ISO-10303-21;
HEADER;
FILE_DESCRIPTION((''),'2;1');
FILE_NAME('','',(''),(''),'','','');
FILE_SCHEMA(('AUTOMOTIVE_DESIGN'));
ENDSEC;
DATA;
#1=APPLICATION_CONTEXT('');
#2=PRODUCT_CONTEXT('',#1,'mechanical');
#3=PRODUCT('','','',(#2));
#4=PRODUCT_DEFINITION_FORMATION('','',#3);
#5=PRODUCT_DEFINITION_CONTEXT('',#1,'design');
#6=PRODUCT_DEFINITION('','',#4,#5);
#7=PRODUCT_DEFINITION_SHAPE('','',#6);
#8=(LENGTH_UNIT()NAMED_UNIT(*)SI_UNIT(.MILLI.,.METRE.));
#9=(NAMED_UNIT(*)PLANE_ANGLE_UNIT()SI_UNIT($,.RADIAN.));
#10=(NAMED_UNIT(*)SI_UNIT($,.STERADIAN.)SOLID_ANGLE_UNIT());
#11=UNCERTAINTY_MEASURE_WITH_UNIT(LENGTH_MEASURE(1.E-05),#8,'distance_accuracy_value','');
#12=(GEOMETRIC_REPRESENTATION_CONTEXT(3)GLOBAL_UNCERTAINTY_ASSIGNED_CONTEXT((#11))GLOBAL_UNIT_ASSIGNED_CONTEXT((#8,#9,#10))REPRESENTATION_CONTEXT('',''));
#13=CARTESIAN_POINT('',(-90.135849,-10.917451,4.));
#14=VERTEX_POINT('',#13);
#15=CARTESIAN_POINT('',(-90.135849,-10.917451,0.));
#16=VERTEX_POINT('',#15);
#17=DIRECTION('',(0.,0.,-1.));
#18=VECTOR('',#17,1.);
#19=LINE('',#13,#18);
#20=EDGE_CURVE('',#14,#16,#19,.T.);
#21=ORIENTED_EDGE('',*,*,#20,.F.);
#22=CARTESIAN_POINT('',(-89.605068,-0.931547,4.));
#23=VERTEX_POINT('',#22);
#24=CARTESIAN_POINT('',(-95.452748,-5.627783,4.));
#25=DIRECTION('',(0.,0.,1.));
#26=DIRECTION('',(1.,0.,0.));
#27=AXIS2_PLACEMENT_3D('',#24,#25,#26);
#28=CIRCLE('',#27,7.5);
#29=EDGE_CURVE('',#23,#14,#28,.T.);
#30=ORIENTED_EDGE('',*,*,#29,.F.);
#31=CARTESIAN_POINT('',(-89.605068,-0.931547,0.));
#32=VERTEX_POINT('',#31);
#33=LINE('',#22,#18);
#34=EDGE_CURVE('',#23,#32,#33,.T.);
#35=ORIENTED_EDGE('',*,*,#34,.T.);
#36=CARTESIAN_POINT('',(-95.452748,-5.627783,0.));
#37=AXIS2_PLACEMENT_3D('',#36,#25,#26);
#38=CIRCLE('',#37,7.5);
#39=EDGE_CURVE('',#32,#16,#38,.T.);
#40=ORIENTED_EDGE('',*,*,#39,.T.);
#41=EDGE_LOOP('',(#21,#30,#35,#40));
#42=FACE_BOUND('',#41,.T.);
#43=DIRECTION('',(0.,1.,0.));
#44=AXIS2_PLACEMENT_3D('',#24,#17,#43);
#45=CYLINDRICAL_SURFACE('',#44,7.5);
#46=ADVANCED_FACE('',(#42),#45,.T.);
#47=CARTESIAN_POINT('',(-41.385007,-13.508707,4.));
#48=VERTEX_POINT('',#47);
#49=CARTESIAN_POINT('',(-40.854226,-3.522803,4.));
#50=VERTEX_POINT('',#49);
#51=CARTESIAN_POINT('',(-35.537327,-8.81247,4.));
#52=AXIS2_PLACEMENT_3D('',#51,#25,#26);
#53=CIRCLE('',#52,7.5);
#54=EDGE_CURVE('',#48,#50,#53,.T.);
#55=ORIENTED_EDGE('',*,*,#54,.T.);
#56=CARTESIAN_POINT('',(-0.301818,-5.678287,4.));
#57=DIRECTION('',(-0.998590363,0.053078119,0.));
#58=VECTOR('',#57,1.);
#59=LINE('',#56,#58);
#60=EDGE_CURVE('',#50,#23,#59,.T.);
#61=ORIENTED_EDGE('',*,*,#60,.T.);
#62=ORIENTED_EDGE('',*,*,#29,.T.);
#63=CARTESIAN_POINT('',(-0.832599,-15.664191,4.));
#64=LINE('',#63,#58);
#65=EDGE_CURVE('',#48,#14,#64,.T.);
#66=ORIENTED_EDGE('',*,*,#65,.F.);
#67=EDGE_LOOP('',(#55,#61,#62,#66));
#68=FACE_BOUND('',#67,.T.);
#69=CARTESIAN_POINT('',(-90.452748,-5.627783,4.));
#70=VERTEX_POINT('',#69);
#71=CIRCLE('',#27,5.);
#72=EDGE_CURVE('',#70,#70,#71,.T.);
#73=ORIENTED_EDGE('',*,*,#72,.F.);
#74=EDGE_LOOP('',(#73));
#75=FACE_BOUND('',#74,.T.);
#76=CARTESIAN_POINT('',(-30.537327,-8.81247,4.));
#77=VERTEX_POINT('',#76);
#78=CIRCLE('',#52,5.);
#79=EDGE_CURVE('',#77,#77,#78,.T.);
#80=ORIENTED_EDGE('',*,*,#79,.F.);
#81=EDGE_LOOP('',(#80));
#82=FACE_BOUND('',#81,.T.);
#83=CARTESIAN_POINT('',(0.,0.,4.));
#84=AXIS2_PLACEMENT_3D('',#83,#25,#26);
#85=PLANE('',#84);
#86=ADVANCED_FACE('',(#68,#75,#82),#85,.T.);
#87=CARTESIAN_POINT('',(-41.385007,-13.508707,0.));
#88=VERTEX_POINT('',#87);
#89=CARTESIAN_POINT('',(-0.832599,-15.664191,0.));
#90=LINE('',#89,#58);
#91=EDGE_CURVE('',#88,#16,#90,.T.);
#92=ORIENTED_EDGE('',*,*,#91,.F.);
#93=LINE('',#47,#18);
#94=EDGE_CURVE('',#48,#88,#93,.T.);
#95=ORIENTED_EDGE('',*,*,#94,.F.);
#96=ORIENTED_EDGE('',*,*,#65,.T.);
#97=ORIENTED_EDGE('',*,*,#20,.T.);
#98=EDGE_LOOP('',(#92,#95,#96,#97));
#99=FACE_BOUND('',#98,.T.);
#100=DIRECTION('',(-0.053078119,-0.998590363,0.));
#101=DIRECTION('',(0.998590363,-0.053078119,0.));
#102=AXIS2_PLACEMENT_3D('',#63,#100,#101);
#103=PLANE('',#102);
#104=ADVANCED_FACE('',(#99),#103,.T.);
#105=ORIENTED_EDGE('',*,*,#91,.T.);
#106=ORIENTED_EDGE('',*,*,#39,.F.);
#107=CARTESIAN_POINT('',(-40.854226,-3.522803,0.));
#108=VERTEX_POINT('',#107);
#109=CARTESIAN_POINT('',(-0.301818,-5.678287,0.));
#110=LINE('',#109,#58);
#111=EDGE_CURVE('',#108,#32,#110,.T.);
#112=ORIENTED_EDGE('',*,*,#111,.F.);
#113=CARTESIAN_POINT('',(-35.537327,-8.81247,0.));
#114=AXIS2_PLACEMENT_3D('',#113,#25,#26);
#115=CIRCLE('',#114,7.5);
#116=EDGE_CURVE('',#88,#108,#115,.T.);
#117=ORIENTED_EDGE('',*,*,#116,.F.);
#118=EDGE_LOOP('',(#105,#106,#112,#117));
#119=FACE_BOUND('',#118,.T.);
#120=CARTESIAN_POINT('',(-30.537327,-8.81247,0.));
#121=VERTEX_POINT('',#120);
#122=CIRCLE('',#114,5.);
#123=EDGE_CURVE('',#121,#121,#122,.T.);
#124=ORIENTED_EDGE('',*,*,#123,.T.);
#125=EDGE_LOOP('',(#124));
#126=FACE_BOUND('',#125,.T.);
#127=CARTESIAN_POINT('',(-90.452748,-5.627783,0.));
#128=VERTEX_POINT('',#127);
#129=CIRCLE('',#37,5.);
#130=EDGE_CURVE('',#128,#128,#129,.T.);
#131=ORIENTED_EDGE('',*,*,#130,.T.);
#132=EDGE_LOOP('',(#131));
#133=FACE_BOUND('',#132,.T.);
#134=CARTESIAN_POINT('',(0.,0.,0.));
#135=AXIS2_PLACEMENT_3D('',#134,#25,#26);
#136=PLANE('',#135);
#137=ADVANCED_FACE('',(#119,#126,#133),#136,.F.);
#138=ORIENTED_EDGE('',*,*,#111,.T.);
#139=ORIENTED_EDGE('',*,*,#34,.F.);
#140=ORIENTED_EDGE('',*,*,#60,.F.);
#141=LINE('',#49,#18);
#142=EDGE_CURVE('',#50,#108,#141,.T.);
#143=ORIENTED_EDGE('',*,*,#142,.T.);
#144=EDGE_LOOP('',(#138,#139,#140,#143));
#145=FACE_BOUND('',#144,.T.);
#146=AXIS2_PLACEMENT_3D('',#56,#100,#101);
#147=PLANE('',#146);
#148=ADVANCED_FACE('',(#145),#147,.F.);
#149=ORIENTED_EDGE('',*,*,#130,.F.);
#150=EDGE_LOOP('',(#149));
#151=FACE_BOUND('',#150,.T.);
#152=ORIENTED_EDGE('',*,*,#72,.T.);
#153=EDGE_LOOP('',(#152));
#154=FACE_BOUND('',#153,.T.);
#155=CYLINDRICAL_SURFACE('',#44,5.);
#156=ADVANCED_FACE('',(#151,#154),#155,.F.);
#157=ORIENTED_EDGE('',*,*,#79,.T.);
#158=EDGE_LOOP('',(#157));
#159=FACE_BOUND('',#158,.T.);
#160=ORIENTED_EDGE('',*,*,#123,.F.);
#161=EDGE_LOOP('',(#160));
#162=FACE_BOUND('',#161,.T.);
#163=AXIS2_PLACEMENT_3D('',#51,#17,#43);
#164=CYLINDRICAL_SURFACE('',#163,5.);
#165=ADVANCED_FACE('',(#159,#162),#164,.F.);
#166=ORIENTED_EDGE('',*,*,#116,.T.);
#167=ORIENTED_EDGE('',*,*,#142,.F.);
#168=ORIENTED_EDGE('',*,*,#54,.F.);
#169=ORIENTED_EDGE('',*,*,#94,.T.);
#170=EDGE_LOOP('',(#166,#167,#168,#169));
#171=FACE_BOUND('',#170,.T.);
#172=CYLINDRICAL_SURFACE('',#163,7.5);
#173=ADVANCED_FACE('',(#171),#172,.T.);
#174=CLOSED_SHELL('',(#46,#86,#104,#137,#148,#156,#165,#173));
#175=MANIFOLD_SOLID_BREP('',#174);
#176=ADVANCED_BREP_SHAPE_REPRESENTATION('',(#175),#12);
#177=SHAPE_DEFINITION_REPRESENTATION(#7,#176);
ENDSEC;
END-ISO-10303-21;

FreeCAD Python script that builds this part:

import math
import FreeCAD as App
import Part
import Sketcher
from FreeCAD import Vector

doc = App.newDocument("Part")
body = doc.addObject("PartDesign::Body", "Body")

sketch1 = body.newObject("Sketcher::SketchObject", "Sketch")
sketch1.AttachmentSupport = (doc.getObject("XY_Plane"), [""])
sketch1.MapMode = "FlatFace"
sketch1.addGeometry(Part.ArcOfCircle(Part.Circle(Vector(-95.5, -5.6, 0), Vector(0, 0, 1), 7.5), math.radians(64), math.radians(315)), False)
sketch1.addGeometry(Part.LineSegment(Vector(-90.1, -10.9, 0), Vector(-41.4, -13.5, 0)), False)
sketch1.addGeometry(Part.ArcOfCircle(Part.Circle(Vector(-35.5, -8.8, 0), Vector(0, 0, 1), 7.5), math.radians(-141), math.radians(64)), False)
sketch1.addGeometry(Part.ArcOfCircle(Part.Circle(Vector(-35.5, -8.8, 0), Vector(0, 0, 1), 7.5), math.radians(64), math.radians(135)), False)
sketch1.addGeometry(Part.LineSegment(Vector(-40.9, -3.5, 0), Vector(-89.6, -0.9, 0)), False)
sketch1.addGeometry(Part.ArcOfCircle(Part.Circle(Vector(-95.5, -5.6, 0), Vector(0, 0, 1), 7.5), math.radians(39), math.radians(64)), False)
sketch1.addGeometry(Part.ArcOfCircle(Part.Circle(Vector(-35.5, -8.8, 0), Vector(0, 0, 1), 5), math.radians(87), math.radians(267)), False)
sketch1.addGeometry(Part.ArcOfCircle(Part.Circle(Vector(-35.5, -8.8, 0), Vector(0, 0, 1), 5), math.radians(64), math.radians(87)), False)
sketch1.addGeometry(Part.ArcOfCircle(Part.Circle(Vector(-35.5, -8.8, 0), Vector(0, 0, 1), 5), math.radians(-93), math.radians(64)), False)
sketch1.addGeometry(Part.ArcOfCircle(Part.Circle(Vector(-95.5, -5.6, 0), Vector(0, 0, 1), 5), math.radians(-93), math.radians(64)), False)
sketch1.addGeometry(Part.ArcOfCircle(Part.Circle(Vector(-95.5, -5.6, 0), Vector(0, 0, 1), 5), math.radians(87), math.radians(267)), False)
sketch1.addGeometry(Part.ArcOfCircle(Part.Circle(Vector(-95.5, -5.6, 0), Vector(0, 0, 1), 5), math.radians(64), math.radians(87)), False)
sketch1.addConstraint(Sketcher.Constraint("Coincident", 0, 2, 1, 1))
sketch1.addConstraint(Sketcher.Constraint("Coincident", 1, 2, 2, 1))
sketch1.addConstraint(Sketcher.Constraint("Tangent", 2, 2, 3, 1))
sketch1.addConstraint(Sketcher.Constraint("Coincident", 3, 2, 4, 1))
sketch1.addConstraint(Sketcher.Constraint("Coincident", 4, 2, 5, 1))
sketch1.addConstraint(Sketcher.Constraint("Tangent", 5, 2, 0, 1))
sketch1.addConstraint(Sketcher.Constraint("Tangent", 6, 1, 7, 2))
sketch1.addConstraint(Sketcher.Constraint("Tangent", 7, 1, 8, 2))
sketch1.addConstraint(Sketcher.Constraint("Tangent", 8, 1, 6, 2))
sketch1.addConstraint(Sketcher.Constraint("Tangent", 9, 1, 10, 2))
sketch1.addConstraint(Sketcher.Constraint("Tangent", 10, 1, 11, 2))
sketch1.addConstraint(Sketcher.Constraint("Tangent", 11, 1, 9, 2))
sketch1.addConstraint(Sketcher.Constraint("Coincident", 6, 3, 2, 3))
sketch1.addConstraint(Sketcher.Constraint("Coincident", 9, 3, 0, 3))
sketch1.addConstraint(Sketcher.Constraint("Equal", 0, 2))
sketch1.addConstraint(Sketcher.Constraint("Equal", 2, 3))
sketch1.addConstraint(Sketcher.Constraint("Equal", 3, 5))
sketch1.addConstraint(Sketcher.Constraint("Equal", 8, 9))
sketch1.addConstraint(Sketcher.Constraint("Parallel", 1, 4))
sketch1.addConstraint(Sketcher.Constraint("Equal", 1, 4))
sketch1.addConstraint(Sketcher.Constraint("Radius", 6, 5.0))
sketch1.addConstraint(Sketcher.Constraint("Radius", 0, 7.5))
sketch1.addConstraint(Sketcher.Constraint("DistanceX", 0, 3, 0, 2, 5.316899))
sketch1.addConstraint(Sketcher.Constraint("Distance", 1, 48.81966))
sketch1.addConstraint(Sketcher.Constraint("DistanceX", 0, 3, -1, 1, 95.452748))
sketch1.addConstraint(Sketcher.Constraint("DistanceY", 2, 3, -1, 1, 8.81247))
sketch1.addConstraint(Sketcher.Constraint("DistanceY", 0, 2, -1, 1, 10.917451))
sketch1.addConstraint(Sketcher.Constraint("DistanceY", 6, 1, -1, 1, 3.819519))
sketch1.addConstraint(Sketcher.Constraint("DistanceX", 9, 1, -1, 1, 95.718139))
sketch1.addConstraint(Sketcher.Constraint("DistanceY", 10, 1, -1, 1, 0.634832))
sketch1.addConstraint(Sketcher.Constraint("DistanceX", 11, 1, -1, 1, 93.296839))
sketch1.addConstraint(Sketcher.Constraint("DistanceX", 0, 3, 2, 3, 59.915422))
sketch1.addConstraint(Sketcher.Constraint("DistanceY", 3, 3, 2, 2, 6.766988))
sketch1.addConstraint(Sketcher.Constraint("DistanceY", 4, 2, 5, 2, 2.070752))
sketch1.addConstraint(Sketcher.Constraint("DistanceX", 6, 1, 7, 1, 1.890518))
sketch1.addConstraint(Sketcher.Constraint("DistanceX", 8, 1, 7, 3, 0.265391))
pad1 = body.newObject("PartDesign::Pad", "Pad")
pad1.Profile = sketch1
pad1.Length = 4

doc.recompute()
